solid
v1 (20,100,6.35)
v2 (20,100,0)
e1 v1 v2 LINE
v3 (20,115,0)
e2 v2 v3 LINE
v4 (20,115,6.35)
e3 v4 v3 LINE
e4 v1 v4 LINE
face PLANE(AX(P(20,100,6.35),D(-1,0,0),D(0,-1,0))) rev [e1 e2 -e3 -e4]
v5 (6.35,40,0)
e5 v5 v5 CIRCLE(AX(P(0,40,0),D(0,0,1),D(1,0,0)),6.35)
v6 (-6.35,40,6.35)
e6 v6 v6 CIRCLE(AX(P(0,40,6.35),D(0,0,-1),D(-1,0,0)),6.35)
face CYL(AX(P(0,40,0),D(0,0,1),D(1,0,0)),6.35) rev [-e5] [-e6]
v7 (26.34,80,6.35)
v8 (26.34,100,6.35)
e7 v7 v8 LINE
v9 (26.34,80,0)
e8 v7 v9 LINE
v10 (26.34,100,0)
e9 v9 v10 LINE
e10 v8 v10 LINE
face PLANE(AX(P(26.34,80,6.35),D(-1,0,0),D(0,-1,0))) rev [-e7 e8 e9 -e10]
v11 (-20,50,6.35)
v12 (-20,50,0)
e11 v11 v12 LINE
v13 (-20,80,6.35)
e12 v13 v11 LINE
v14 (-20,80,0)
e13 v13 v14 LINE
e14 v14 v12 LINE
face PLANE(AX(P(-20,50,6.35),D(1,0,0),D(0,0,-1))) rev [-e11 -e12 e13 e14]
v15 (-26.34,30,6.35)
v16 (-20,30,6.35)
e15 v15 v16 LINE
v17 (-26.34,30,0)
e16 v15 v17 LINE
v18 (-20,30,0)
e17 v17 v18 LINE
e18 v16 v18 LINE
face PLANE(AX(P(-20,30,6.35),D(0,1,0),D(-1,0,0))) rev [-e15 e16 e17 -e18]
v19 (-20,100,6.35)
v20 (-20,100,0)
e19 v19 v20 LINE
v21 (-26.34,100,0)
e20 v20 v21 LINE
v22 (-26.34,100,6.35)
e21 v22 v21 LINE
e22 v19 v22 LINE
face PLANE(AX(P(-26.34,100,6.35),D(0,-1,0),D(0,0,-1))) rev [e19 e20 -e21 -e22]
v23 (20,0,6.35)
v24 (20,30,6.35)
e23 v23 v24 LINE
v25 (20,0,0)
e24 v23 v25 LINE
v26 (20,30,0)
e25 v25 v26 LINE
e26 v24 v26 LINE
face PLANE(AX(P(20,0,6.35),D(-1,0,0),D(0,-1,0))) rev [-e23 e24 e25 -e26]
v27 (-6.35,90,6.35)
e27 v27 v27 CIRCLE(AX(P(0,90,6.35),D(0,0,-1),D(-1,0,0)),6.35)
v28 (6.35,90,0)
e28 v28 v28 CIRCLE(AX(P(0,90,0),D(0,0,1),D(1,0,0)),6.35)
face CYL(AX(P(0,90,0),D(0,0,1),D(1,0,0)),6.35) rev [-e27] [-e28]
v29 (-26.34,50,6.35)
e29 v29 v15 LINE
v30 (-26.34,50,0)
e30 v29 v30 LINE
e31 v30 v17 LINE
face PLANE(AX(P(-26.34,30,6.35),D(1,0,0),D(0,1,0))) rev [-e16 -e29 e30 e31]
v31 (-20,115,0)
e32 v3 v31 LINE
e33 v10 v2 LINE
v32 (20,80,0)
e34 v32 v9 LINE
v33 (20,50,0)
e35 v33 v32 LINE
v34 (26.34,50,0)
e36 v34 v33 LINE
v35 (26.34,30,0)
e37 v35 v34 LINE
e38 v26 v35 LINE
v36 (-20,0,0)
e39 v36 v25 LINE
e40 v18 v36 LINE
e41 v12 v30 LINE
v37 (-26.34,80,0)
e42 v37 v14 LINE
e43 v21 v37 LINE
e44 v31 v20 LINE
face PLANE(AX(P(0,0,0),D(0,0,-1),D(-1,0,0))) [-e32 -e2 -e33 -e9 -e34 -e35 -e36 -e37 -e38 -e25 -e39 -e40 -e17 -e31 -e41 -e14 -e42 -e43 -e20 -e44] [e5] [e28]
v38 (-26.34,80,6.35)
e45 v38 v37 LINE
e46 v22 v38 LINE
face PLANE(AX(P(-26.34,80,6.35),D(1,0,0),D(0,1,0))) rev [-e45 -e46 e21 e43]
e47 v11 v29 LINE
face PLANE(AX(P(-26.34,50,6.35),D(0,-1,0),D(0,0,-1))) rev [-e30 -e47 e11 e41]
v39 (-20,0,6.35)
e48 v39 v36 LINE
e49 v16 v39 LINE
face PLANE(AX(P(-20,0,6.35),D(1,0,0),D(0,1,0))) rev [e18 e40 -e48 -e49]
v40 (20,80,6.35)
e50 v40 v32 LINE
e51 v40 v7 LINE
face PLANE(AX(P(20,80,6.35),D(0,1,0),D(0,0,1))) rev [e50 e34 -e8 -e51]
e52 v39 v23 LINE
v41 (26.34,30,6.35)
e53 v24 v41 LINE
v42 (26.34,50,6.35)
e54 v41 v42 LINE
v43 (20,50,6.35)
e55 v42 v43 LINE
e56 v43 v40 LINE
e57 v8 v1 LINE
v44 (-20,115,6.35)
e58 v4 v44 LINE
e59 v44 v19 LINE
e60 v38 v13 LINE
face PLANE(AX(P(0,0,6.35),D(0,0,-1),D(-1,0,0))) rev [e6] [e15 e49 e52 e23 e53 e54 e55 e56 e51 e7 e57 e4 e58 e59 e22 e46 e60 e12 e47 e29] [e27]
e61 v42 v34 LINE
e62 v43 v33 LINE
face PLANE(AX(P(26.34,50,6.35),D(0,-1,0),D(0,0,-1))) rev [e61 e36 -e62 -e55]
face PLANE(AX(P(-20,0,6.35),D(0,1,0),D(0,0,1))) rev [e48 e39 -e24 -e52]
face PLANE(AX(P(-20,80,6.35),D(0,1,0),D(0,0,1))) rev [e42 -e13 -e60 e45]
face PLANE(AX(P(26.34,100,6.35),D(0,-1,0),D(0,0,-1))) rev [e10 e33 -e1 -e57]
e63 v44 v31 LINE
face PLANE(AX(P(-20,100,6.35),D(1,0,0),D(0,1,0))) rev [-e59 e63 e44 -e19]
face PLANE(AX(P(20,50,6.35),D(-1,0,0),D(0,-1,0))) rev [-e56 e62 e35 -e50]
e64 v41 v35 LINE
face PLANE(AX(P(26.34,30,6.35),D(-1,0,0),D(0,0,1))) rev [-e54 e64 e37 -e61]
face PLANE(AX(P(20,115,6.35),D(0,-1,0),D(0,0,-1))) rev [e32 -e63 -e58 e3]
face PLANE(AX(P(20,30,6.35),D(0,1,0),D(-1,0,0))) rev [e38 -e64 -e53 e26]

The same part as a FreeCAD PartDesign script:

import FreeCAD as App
import Part
import Sketcher
from FreeCAD import Vector

doc = App.newDocument("Part")
body = doc.addObject("PartDesign::Body", "Body")

# Sketch on XY plane
sketch1 = body.newObject("Sketcher::SketchObject", "Sketch")
sketch1.AttachmentSupport = (doc.getObject("XY_Plane"), [""])
sketch1.MapMode = "FlatFace"
sketch1.addGeometry([
    Part.LineSegment(Vector(-20, 0, 0), Vector(20, 0, 0)),  # 0
    Part.LineSegment(Vector(20, 0, 0), Vector(20, 30, 0)),  # 1
    Part.LineSegment(Vector(20, 30, 0), Vector(26.34, 30, 0)),  # 2
    Part.LineSegment(Vector(26.34, 30, 0), Vector(26.34, 50, 0)),  # 3
    Part.LineSegment(Vector(26.34, 50, 0), Vector(20, 50, 0)),  # 4
    Part.LineSegment(Vector(20, 50, 0), Vector(20, 80, 0)),  # 5
    Part.LineSegment(Vector(20, 80, 0), Vector(26.34, 80, 0)),  # 6
    Part.LineSegment(Vector(26.34, 80, 0), Vector(26.34, 100, 0)),  # 7
    Part.LineSegment(Vector(26.34, 100, 0), Vector(20, 100, 0)),  # 8
    Part.LineSegment(Vector(20, 100, 0), Vector(20, 115, 0)),  # 9
    Part.LineSegment(Vector(20, 115, 0), Vector(-20, 115, 0)),  # 10
    Part.LineSegment(Vector(-20, 115, 0), Vector(-20, 100, 0)),  # 11
    Part.LineSegment(Vector(-20, 100, 0), Vector(-26.34, 100, 0)),  # 12
    Part.LineSegment(Vector(-26.34, 100, 0), Vector(-26.34, 80, 0)),  # 13
    Part.LineSegment(Vector(-26.34, 80, 0), Vector(-20, 80, 0)),  # 14
    Part.LineSegment(Vector(-20, 80, 0), Vector(-20, 50, 0)),  # 15
    Part.LineSegment(Vector(-20, 50, 0), Vector(-26.34, 50, 0)),  # 16
    Part.LineSegment(Vector(-26.34, 50, 0), Vector(-26.34, 30, 0)),  # 17
    Part.LineSegment(Vector(-26.34, 30, 0), Vector(-20, 30, 0)),  # 18
    Part.LineSegment(Vector(-20, 30, 0), Vector(-20, 0, 0)),  # 19
], False)
sketch1.addConstraint([
    Sketcher.Constraint("Coincident", 0, 2, 1, 1),
    Sketcher.Constraint("Coincident", 1, 2, 2, 1),
    Sketcher.Constraint("Coincident", 2, 2, 3, 1),
    Sketcher.Constraint("Coincident", 3, 2, 4, 1),
    Sketcher.Constraint("Coincident", 4, 2, 5, 1),
    Sketcher.Constraint("Coincident", 5, 2, 6, 1),
    Sketcher.Constraint("Coincident", 6, 2, 7, 1),
    Sketcher.Constraint("Coincident", 7, 2, 8, 1),
    Sketcher.Constraint("Coincident", 8, 2, 9, 1),
    Sketcher.Constraint("Coincident", 9, 2, 10, 1),
    Sketcher.Constraint("Coincident", 10, 2, 11, 1),
    Sketcher.Constraint("Coincident", 11, 2, 12, 1),
    Sketcher.Constraint("Coincident", 12, 2, 13, 1),
    Sketcher.Constraint("Coincident", 13, 2, 14, 1),
    Sketcher.Constraint("Coincident", 14, 2, 15, 1),
    Sketcher.Constraint("Coincident", 15, 2, 16, 1),
    Sketcher.Constraint("Coincident", 16, 2, 17, 1),
    Sketcher.Constraint("Coincident", 17, 2, 18, 1),
    Sketcher.Constraint("Coincident", 18, 2, 19, 1),
    Sketcher.Constraint("Coincident", 19, 2, 0, 1),
    Sketcher.Constraint("Horizontal", 0),
    Sketcher.Constraint("Vertical", 1),
    Sketcher.Constraint("Horizontal", 2),
    Sketcher.Constraint("Vertical", 3),
    Sketcher.Constraint("Horizontal", 4),
    Sketcher.Constraint("Vertical", 5),
    Sketcher.Constraint("Horizontal", 6),
    Sketcher.Constraint("Vertical", 7),
    Sketcher.Constraint("Horizontal", 8),
    Sketcher.Constraint("Vertical", 9),
    Sketcher.Constraint("Horizontal", 10),
    Sketcher.Constraint("Vertical", 11),
    Sketcher.Constraint("Horizontal", 12),
    Sketcher.Constraint("Vertical", 13),
    Sketcher.Constraint("Horizontal", 14),
    Sketcher.Constraint("Vertical", 15),
    Sketcher.Constraint("Horizontal", 16),
    Sketcher.Constraint("Vertical", 17),
    Sketcher.Constraint("Horizontal", 18),
    Sketcher.Constraint("Vertical", 19),
    Sketcher.Constraint("Symmetric", 0, 2, 19, 2, -1, 1),
    Sketcher.Constraint("Symmetric", 8, 2, 11, 2, -2),
    Sketcher.Constraint("Symmetric", 6, 2, 13, 2, -2),
    Sketcher.Constraint("Symmetric", 4, 2, 15, 2, -2),
    Sketcher.Constraint("Symmetric", 2, 2, 17, 2, -2),
    Sketcher.Constraint("Vertical", 1, 2, 4, 2),
    Sketcher.Constraint("Vertical", 3, 2, 6, 2),
    Sketcher.Constraint("Vertical", 5, 2, 8, 2),
    Sketcher.Constraint("Equal", 1, 5),
    Sketcher.Constraint("Equal", 3, 7),
    Sketcher.Constraint("DistanceX", 0, 1, 0, 2, 40.0),
    Sketcher.Constraint("DistanceY", 1, 1, 1, 2, 30.0),
    Sketcher.Constraint("DistanceY", 3, 1, 3, 2, 20.0),
    Sketcher.Constraint("DistanceY", 9, 1, 9, 2, 15.0),
    Sketcher.Constraint("DistanceX", 2, 1, 2, 2, 6.34),
])
pad1 = body.newObject("PartDesign::Pad", "Pad")
pad1.Profile = sketch1
pad1.Length = 6.35

# Sketch on XY plane
sketch2 = body.newObject("Sketcher::SketchObject", "Sketch001")
sketch2.AttachmentSupport = (doc.getObject("XY_Plane"), [""])
sketch2.MapMode = "FlatFace"
sketch2.AttachmentOffset = App.Placement(Vector(0, 0, 6.35), App.Rotation())
sketch2.addGeometry([
    Part.Circle(Vector(0, 90, 0), Vector(0, 0, 1), 6.35),
    Part.Circle(Vector(0, 40, 0), Vector(0, 0, 1), 6.35),
], False)
sketch2.addConstraint([
    Sketcher.Constraint("Equal", 0, 1),
    Sketcher.Constraint("PointOnObject", 0, 3, -2),
    Sketcher.Constraint("PointOnObject", 1, 3, -2),
    Sketcher.Constraint("Diameter", 0, 12.7),
    Sketcher.Constraint("DistanceY", -1, 1, 0, 3, 90.0),
    Sketcher.Constraint("DistanceY", -1, 1, 1, 3, 40.0),
])
pocket1 = body.newObject("PartDesign::Pocket", "Pocket")
pocket1.Profile = sketch2
pocket1.Type = "ThroughAll"
pocket1.Midplane = True

doc.recompute()
